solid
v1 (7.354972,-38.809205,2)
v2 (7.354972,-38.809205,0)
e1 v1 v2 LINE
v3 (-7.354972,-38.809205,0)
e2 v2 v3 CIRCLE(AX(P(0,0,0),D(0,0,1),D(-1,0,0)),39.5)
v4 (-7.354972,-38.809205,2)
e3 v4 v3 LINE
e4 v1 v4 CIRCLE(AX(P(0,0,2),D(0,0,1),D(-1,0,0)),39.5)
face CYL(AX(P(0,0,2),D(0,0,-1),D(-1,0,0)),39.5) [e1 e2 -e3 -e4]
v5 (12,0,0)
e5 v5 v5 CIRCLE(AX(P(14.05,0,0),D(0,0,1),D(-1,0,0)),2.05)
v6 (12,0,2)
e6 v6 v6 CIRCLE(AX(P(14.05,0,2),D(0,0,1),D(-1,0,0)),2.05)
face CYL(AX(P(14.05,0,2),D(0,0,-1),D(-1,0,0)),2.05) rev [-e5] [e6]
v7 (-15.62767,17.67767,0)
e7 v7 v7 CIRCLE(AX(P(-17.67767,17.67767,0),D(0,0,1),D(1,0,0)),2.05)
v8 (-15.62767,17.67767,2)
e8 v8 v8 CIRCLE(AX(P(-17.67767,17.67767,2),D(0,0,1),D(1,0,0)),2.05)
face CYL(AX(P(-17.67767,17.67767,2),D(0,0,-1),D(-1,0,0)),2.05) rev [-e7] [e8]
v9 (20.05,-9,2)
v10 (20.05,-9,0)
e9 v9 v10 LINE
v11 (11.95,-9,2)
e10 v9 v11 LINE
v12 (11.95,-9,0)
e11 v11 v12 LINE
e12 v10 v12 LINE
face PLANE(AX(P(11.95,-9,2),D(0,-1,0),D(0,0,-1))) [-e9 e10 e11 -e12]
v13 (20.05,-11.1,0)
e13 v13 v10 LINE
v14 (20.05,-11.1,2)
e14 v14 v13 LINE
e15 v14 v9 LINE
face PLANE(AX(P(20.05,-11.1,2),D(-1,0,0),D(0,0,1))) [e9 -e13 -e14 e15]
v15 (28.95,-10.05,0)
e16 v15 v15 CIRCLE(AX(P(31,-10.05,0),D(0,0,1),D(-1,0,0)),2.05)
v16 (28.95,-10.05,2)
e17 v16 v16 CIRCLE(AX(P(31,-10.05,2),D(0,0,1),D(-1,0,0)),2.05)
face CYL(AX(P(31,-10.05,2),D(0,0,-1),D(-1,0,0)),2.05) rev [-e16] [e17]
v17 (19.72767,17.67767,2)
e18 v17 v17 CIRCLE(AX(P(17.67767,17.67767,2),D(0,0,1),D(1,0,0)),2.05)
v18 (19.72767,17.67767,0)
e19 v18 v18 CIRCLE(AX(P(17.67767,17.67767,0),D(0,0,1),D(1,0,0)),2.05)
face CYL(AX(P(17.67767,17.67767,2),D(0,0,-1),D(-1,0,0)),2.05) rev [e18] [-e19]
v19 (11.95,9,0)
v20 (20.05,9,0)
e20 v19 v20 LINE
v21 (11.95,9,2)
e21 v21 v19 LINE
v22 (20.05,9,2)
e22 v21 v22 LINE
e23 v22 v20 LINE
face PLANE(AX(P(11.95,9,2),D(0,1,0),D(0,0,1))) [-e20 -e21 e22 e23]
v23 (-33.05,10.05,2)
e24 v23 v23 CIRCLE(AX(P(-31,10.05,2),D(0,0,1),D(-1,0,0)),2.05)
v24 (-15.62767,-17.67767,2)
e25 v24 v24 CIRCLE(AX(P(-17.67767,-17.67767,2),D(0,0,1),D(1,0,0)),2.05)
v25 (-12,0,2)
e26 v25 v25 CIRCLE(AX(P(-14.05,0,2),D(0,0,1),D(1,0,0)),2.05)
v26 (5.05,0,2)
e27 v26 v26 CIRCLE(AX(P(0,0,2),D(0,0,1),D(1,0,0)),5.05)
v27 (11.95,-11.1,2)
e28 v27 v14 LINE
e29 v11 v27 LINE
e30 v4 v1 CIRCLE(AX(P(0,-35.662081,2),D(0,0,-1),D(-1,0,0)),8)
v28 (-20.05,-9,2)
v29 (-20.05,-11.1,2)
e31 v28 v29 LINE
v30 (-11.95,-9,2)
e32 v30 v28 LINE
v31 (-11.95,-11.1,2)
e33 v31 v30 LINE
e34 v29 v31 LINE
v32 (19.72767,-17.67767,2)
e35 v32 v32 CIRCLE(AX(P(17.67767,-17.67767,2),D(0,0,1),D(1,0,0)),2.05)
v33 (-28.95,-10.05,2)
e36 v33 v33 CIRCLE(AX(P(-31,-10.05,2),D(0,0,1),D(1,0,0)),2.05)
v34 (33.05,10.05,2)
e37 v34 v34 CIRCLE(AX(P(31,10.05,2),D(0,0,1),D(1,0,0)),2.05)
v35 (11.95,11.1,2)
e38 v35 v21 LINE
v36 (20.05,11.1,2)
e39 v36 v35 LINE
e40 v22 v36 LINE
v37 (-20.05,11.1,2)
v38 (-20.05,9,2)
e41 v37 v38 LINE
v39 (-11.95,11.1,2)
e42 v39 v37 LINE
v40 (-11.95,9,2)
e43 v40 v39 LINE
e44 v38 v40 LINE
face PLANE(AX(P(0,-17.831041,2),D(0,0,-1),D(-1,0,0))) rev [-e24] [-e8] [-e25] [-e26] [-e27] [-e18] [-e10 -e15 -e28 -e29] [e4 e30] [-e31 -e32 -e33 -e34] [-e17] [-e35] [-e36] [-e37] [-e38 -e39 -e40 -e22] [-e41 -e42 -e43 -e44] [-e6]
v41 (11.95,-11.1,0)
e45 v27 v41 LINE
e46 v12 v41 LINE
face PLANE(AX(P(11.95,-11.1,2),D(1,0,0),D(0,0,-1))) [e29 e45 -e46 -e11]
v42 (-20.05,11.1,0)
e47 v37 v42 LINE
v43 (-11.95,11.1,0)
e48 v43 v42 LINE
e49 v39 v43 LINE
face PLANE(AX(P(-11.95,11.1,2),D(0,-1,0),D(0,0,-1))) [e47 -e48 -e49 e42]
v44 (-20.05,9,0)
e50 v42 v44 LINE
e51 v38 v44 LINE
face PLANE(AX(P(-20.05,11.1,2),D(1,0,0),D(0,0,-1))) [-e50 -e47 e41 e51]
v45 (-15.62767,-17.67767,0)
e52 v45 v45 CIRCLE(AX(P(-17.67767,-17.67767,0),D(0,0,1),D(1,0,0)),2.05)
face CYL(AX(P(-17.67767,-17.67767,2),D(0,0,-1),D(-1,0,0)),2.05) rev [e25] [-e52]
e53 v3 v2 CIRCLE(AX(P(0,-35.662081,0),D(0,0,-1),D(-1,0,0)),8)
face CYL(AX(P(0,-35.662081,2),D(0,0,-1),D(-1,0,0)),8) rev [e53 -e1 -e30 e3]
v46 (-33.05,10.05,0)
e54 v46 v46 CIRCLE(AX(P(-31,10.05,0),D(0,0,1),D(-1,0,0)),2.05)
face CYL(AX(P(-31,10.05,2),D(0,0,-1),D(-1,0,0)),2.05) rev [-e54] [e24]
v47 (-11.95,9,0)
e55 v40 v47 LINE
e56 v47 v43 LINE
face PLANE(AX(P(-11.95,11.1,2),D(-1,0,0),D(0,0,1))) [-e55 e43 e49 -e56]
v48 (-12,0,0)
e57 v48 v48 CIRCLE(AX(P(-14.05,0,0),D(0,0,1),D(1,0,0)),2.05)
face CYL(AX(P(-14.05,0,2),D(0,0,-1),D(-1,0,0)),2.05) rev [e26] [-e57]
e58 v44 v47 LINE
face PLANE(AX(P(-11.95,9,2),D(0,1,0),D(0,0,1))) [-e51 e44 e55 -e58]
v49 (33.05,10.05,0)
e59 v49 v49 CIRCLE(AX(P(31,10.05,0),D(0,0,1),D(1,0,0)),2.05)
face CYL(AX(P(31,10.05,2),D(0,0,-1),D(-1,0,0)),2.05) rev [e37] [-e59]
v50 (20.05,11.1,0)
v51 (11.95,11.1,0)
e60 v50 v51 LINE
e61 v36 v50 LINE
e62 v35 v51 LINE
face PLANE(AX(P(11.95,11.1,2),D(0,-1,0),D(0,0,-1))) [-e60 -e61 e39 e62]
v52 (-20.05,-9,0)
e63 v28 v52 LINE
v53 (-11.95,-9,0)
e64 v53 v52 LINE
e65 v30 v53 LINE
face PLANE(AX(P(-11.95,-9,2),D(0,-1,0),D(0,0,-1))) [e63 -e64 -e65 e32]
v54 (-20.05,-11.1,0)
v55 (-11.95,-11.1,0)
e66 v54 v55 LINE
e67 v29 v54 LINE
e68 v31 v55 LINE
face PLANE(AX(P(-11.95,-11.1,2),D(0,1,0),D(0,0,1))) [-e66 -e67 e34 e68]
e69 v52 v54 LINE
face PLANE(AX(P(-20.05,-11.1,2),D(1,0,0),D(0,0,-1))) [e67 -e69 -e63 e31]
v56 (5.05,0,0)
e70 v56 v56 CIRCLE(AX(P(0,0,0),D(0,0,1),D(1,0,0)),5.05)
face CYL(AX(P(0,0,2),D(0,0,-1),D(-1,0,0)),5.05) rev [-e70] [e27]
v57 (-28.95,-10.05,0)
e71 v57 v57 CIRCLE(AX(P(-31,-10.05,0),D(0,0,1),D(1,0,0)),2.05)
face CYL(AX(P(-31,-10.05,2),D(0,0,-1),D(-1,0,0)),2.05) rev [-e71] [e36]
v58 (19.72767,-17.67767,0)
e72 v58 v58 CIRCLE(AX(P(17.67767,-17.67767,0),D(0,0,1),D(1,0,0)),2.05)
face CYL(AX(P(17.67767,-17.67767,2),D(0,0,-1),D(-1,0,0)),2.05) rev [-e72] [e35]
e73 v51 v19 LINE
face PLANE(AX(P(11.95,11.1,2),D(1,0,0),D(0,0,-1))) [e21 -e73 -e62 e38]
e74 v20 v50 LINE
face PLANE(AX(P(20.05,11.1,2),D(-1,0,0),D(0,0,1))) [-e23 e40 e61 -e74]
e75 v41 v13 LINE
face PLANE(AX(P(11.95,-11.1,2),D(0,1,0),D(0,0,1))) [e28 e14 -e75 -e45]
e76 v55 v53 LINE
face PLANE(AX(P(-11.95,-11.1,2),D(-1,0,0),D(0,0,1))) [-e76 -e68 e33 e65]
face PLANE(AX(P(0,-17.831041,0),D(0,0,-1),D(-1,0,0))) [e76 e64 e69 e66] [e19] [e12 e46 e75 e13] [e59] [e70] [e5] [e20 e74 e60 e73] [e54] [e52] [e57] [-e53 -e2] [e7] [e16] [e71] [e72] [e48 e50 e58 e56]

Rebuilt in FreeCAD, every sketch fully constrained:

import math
import FreeCAD as App
import Part
import Sketcher

V = App.Vector

doc = App.newDocument("Part")
params = doc.addObject("Spreadsheet::Sheet", "Params")
for row, (alias, value) in enumerate([
    ("sketch1_radius", "8 mm"),
    ("sketch1_diameter", "4.1 mm"),
    ("sketch1_diameter2", "10.1 mm"),
    ("sketch1_radius2", "39.5 mm"),
    ("sketch1_width", "8.1 mm"),
    ("pad1_length", "2 mm"),
], start=1):
    params.set(f"A{row}", alias)
    params.set(f"B{row}", "=" + value)
    params.setAlias(f"B{row}", alias)

body = doc.addObject("PartDesign::Body", "Body")

# Sketch on XY plane
sketch1 = body.newObject("Sketcher::SketchObject", "Sketch")
sketch1.AttachmentSupport = (doc.getObject("XY_Plane"), [""])
sketch1.MapMode = "FlatFace"
sketch1.addGeometry(Part.ArcOfCircle(Part.Circle(V(0, 0, 0), V(0, 0, 1), 39.5), math.radians(-79.268791), math.radians(259.268791)), False)
sketch1.addGeometry(Part.ArcOfCircle(Part.Circle(V(0, -35.662081, 0), V(0, 0, 1), 8), math.radians(-23.16563), math.radians(203.16563)), False)
sketch1.addGeometry(Part.Circle(V(17.67767, -17.67767, 0), V(0, 0, 1), 2.05), False)
sketch1.addGeometry(Part.Circle(V(31, -10.05, 0), V(0, 0, 1), 2.05), False)
sketch1.addGeometry(Part.LineSegment(V(11.95, -11.1, 0), V(11.95, -9, 0)), False)
sketch1.addGeometry(Part.LineSegment(V(11.95, -9, 0), V(20.05, -9, 0)), False)
sketch1.addGeometry(Part.LineSegment(V(20.05, -9, 0), V(20.05, -11.1, 0)), False)
sketch1.addGeometry(Part.LineSegment(V(20.05, -11.1, 0), V(11.95, -11.1, 0)), False)
sketch1.addGeometry(Part.LineSegment(V(-20.05, -11.1, 0), V(-20.05, -9, 0)), False)
sketch1.addGeometry(Part.LineSegment(V(-20.05, -9, 0), V(-11.95, -9, 0)), False)
sketch1.addGeometry(Part.LineSegment(V(-11.95, -9, 0), V(-11.95, -11.1, 0)), False)
sketch1.addGeometry(Part.LineSegment(V(-11.95, -11.1, 0), V(-20.05, -11.1, 0)), False)
sketch1.addGeometry(Part.Circle(V(-17.67767, -17.67767, 0), V(0, 0, 1), 2.05), False)
sketch1.addGeometry(Part.Circle(V(-31, -10.05, 0), V(0, 0, 1), 2.05), False)
sketch1.addGeometry(Part.Circle(V(14.05, 0, 0), V(0, 0, 1), 2.05), False)
sketch1.addGeometry(Part.Circle(V(31, 10.05, 0), V(0, 0, 1), 2.05), False)
sketch1.addGeometry(Part.Circle(V(17.67767, 17.67767, 0), V(0, 0, 1), 2.05), False)
sketch1.addGeometry(Part.LineSegment(V(11.95, 9, 0), V(11.95, 11.1, 0)), False)
sketch1.addGeometry(Part.LineSegment(V(11.95, 11.1, 0), V(20.05, 11.1, 0)), False)
sketch1.addGeometry(Part.LineSegment(V(20.05, 11.1, 0), V(20.05, 9, 0)), False)
sketch1.addGeometry(Part.LineSegment(V(20.05, 9, 0), V(11.95, 9, 0)), False)
sketch1.addGeometry(Part.Circle(V(0, 0, 0), V(0, 0, 1), 5.05), False)
sketch1.addGeometry(Part.Circle(V(-14.05, 0, 0), V(0, 0, 1), 2.05), False)
sketch1.addGeometry(Part.LineSegment(V(-20.05, 9, 0), V(-20.05, 11.1, 0)), False)
sketch1.addGeometry(Part.LineSegment(V(-20.05, 11.1, 0), V(-11.95, 11.1, 0)), False)
sketch1.addGeometry(Part.LineSegment(V(-11.95, 11.1, 0), V(-11.95, 9, 0)), False)
sketch1.addGeometry(Part.LineSegment(V(-11.95, 9, 0), V(-20.05, 9, 0)), False)
sketch1.addGeometry(Part.Circle(V(-31, 10.05, 0), V(0, 0, 1), 2.05), False)
sketch1.addGeometry(Part.Circle(V(-17.67767, 17.67767, 0), V(0, 0, 1), 2.05), False)
sketch1.addConstraint(Sketcher.Constraint("Coincident", 0, 1, 1, 1))
sketch1.addConstraint(Sketcher.Constraint("Coincident", 1, 2, 0, 2))
sketch1.addConstraint(Sketcher.Constraint("Coincident", 4, 2, 5, 1))
sketch1.addConstraint(Sketcher.Constraint("Coincident", 5, 2, 6, 1))
sketch1.addConstraint(Sketcher.Constraint("Coincident", 6, 2, 7, 1))
sketch1.addConstraint(Sketcher.Constraint("Coincident", 7, 2, 4, 1))
sketch1.addConstraint(Sketcher.Constraint("Coincident", 8, 2, 9, 1))
sketch1.addConstraint(Sketcher.Constraint("Coincident", 9, 2, 10, 1))
sketch1.addConstraint(Sketcher.Constraint("Coincident", 10, 2, 11, 1))
sketch1.addConstraint(Sketcher.Constraint("Coincident", 11, 2, 8, 1))
sketch1.addConstraint(Sketcher.Constraint("Coincident", 17, 2, 18, 1))
sketch1.addConstraint(Sketcher.Constraint("Coincident", 18, 2, 19, 1))
sketch1.addConstraint(Sketcher.Constraint("Coincident", 19, 2, 20, 1))
sketch1.addConstraint(Sketcher.Constraint("Coincident", 20, 2, 17, 1))
sketch1.addConstraint(Sketcher.Constraint("Coincident", 23, 2, 24, 1))
sketch1.addConstraint(Sketcher.Constraint("Coincident", 24, 2, 25, 1))
sketch1.addConstraint(Sketcher.Constraint("Coincident", 25, 2, 26, 1))
sketch1.addConstraint(Sketcher.Constraint("Coincident", 26, 2, 23, 1))
sketch1.addConstraint(Sketcher.Constraint("Vertical", 4))
sketch1.addConstraint(Sketcher.Constraint("Horizontal", 5))
sketch1.addConstraint(Sketcher.Constraint("Vertical", 6))
sketch1.addConstraint(Sketcher.Constraint("Horizontal", 7))
sketch1.addConstraint(Sketcher.Constraint("Vertical", 8))
sketch1.addConstraint(Sketcher.Constraint("Horizontal", 9))
sketch1.addConstraint(Sketcher.Constraint("Vertical", 10))
sketch1.addConstraint(Sketcher.Constraint("Horizontal", 11))
sketch1.addConstraint(Sketcher.Constraint("Vertical", 17))
sketch1.addConstraint(Sketcher.Constraint("Horizontal", 18))
sketch1.addConstraint(Sketcher.Constraint("Vertical", 19))
sketch1.addConstraint(Sketcher.Constraint("Horizontal", 20))
sketch1.addConstraint(Sketcher.Constraint("Vertical", 23))
sketch1.addConstraint(Sketcher.Constraint("Horizontal", 24))
sketch1.addConstraint(Sketcher.Constraint("Vertical", 25))
sketch1.addConstraint(Sketcher.Constraint("Horizontal", 26))
sketch1.addConstraint(Sketcher.Constraint("Coincident", 0, 3, -1, 1))
sketch1.addConstraint(Sketcher.Constraint("Coincident", 21, 3, -1, 1))
sketch1.addConstraint(Sketcher.Constraint("Equal", 2, 3))
sketch1.addConstraint(Sketcher.Constraint("Equal", 3, 12))
sketch1.addConstraint(Sketcher.Constraint("Equal", 12, 13))
sketch1.addConstraint(Sketcher.Constraint("Equal", 13, 14))
sketch1.addConstraint(Sketcher.Constraint("Equal", 14, 15))
sketch1.addConstraint(Sketcher.Constraint("Equal", 15, 16))
sketch1.addConstraint(Sketcher.Constraint("Equal", 16, 22))
sketch1.addConstraint(Sketcher.Constraint("Equal", 22, 27))
sketch1.addConstraint(Sketcher.Constraint("Equal", 27, 28))
sketch1.addConstraint(Sketcher.Constraint("Symmetric", 13, 3, 15, 3, -1, 1))
sketch1.addConstraint(Sketcher.Constraint("Symmetric", 12, 3, 16, 3, -1, 1))
sketch1.addConstraint(Sketcher.Constraint("Symmetric", 14, 3, 22, 3, -1, 1))
sketch1.addConstraint(Sketcher.Constraint("Symmetric", 3, 3, 27, 3, -1, 1))
sketch1.addConstraint(Sketcher.Constraint("Symmetric", 2, 3, 28, 3, -1, 1))
sketch1.addConstraint(Sketcher.Constraint("Symmetric", 10, 2, 17, 2, -1, 1))
sketch1.addConstraint(Sketcher.Constraint("Symmetric", 8, 2, 19, 2, -1, 1))
sketch1.addConstraint(Sketcher.Constraint("Symmetric", 6, 2, 23, 2, -1, 1))
sketch1.addConstraint(Sketcher.Constraint("Symmetric", 4, 2, 25, 2, -1, 1))
sketch1.addConstraint(Sketcher.Constraint("Symmetric", 2, 3, 12, 3, -2))
sketch1.addConstraint(Sketcher.Constraint("Symmetric", 3, 3, 13, 3, -2))
sketch1.addConstraint(Sketcher.Constraint("Symmetric", 5, 2, 8, 2, -2))
sketch1.addConstraint(Sketcher.Constraint("Symmetric", 7, 2, 10, 2, -2))
sketch1.addConstraint(Sketcher.Constraint("PointOnObject", 1, 3, -2))
sketch1.addConstraint(Sketcher.Constraint("PointOnObject", 14, 3, -1))
sketch1.addConstraint(Sketcher.Constraint("Radius", 1, 8.0))
sketch1.addConstraint(Sketcher.Constraint("Diameter", 2, 4.1))
sketch1.addConstraint(Sketcher.Constraint("Diameter", 21, 10.1))
sketch1.addConstraint(Sketcher.Constraint("Radius", 0, 39.5))
sketch1.addConstraint(Sketcher.Constraint("DistanceX", 5, 1, 5, 2, 8.1))
sketch1.addConstraint(Sketcher.Constraint("DistanceY", 4, 1, 4, 2, 2.1))
sketch1.addConstraint(Sketcher.Constraint("DistanceX", -1, 1, 3, 3, 31.0))
sketch1.addConstraint(Sketcher.Constraint("DistanceY", 4, 2, -1, 1, 9.0))
sketch1.addConstraint(Sketcher.Constraint("DistanceX", 14, 3, 5, 2, 6.0))
sketch1.addConstraint(Sketcher.Constraint("DistanceY", 3, 3, 15, 3, 20.1))
sketch1.addConstraint(Sketcher.Constraint("DistanceX", 22, 3, 14, 3, 28.1))
sketch1.addConstraint(Sketcher.Constraint("DistanceY", 1, 3, -1, 1, 35.662081))
sketch1.addConstraint(Sketcher.Constraint("DistanceX", -1, 1, 2, 3, 17.67767))
sketch1.addConstraint(Sketcher.Constraint("DistanceY", 2, 3, -1, 1, 17.67767))
sketch1.setExpression("Constraints[60]", "Params.sketch1_radius")
sketch1.setExpression("Constraints[61]", "Params.sketch1_diameter")
sketch1.setExpression("Constraints[62]", "Params.sketch1_diameter2")
sketch1.setExpression("Constraints[63]", "Params.sketch1_radius2")
sketch1.setExpression("Constraints[64]", "Params.sketch1_width")
pad1 = body.newObject("PartDesign::Pad", "Pad")
pad1.Profile = sketch1
pad1.setExpression("Length", "Params.pad1_length")

doc.recompute()
